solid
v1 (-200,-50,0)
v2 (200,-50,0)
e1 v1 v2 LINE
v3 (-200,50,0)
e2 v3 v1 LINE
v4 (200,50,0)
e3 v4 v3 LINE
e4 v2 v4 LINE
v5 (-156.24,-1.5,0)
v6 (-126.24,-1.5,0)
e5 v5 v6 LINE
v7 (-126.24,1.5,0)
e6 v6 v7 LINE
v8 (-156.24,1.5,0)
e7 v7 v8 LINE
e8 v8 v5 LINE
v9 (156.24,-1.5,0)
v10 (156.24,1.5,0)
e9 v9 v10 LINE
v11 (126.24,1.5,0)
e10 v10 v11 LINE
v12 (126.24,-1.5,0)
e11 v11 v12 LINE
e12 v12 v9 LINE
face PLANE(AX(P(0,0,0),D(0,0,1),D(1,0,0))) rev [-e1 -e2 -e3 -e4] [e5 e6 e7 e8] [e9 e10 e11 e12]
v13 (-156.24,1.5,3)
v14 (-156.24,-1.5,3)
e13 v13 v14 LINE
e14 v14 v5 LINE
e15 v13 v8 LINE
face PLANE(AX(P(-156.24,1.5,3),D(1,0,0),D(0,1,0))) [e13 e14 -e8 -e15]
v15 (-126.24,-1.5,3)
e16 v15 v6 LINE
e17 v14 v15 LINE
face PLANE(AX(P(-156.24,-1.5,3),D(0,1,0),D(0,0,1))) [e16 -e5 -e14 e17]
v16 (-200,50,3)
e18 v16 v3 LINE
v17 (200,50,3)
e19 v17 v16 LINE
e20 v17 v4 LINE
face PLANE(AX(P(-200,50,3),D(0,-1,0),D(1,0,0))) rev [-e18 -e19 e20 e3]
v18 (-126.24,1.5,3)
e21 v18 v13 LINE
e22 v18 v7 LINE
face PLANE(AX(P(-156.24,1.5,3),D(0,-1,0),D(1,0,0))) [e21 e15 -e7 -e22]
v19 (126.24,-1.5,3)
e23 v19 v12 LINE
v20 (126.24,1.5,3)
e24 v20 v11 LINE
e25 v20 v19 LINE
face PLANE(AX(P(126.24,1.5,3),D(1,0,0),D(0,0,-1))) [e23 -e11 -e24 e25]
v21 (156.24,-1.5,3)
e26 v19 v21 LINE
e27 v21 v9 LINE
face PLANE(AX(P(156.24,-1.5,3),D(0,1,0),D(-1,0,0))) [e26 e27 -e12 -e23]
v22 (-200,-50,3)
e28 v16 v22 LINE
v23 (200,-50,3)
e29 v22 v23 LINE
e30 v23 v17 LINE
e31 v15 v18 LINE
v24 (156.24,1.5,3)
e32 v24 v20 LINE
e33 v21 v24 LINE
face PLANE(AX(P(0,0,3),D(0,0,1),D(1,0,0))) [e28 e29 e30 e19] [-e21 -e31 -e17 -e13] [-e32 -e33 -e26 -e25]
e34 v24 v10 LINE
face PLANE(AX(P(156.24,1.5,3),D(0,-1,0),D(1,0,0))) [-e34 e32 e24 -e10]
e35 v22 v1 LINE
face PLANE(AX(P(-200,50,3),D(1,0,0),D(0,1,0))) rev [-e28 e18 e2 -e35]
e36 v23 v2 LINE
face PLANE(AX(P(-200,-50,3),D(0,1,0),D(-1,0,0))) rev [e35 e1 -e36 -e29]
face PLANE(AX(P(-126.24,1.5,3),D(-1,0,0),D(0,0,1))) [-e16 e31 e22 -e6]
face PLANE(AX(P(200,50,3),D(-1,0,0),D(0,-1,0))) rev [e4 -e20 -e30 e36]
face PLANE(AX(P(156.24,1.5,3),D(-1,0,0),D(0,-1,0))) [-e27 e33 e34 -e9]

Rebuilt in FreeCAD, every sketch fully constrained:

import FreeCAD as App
import Part
import Sketcher

V = App.Vector
Q = App.Units.Quantity

doc = App.newDocument("Part")
body = doc.addObject("PartDesign::Body", "Body")

sketch1 = body.newObject("Sketcher::SketchObject", "Sketch")
sketch1.AttachmentSupport = (doc.getObject("XY_Plane"), [""])
sketch1.MapMode = "FlatFace"
sketch1.addGeometry([
    Part.LineSegment(V(-200, 50, 0), V(-200, -50, 0)),
    Part.LineSegment(V(-200, -50, 0), V(200, -50, 0)),
    Part.LineSegment(V(200, -50, 0), V(200, 50, 0)),
    Part.LineSegment(V(200, 50, 0), V(-200, 50, 0)),
    Part.LineSegment(V(-126.2, -1.5, 0), V(-156.2, -1.5, 0)),
    Part.LineSegment(V(-156.2, -1.5, 0), V(-156.2, 1.5, 0)),
    Part.LineSegment(V(-156.2, 1.5, 0), V(-126.2, 1.5, 0)),
    Part.LineSegment(V(-126.2, 1.5, 0), V(-126.2, -1.5, 0)),
    Part.LineSegment(V(156.2, -1.5, 0), V(126.2, -1.5, 0)),
    Part.LineSegment(V(126.2, -1.5, 0), V(126.2, 1.5, 0)),
    Part.LineSegment(V(126.2, 1.5, 0), V(156.2, 1.5, 0)),
    Part.LineSegment(V(156.2, 1.5, 0), V(156.2, -1.5, 0)),
], False)
sketch1.addConstraint([
    Sketcher.Constraint("Coincident", 0, 2, 1, 1),
    Sketcher.Constraint("Coincident", 1, 2, 2, 1),
    Sketcher.Constraint("Coincident", 2, 2, 3, 1),
    Sketcher.Constraint("Coincident", 3, 2, 0, 1),
    Sketcher.Constraint("Coincident", 4, 2, 5, 1),
    Sketcher.Constraint("Coincident", 5, 2, 6, 1),
    Sketcher.Constraint("Coincident", 6, 2, 7, 1),
    Sketcher.Constraint("Coincident", 7, 2, 4, 1),
    Sketcher.Constraint("Coincident", 8, 2, 9, 1),
    Sketcher.Constraint("Coincident", 9, 2, 10, 1),
    Sketcher.Constraint("Coincident", 10, 2, 11, 1),
    Sketcher.Constraint("Coincident", 11, 2, 8, 1),
    Sketcher.Constraint("Vertical", 0),
    Sketcher.Constraint("Horizontal", 1),
    Sketcher.Constraint("Vertical", 2),
    Sketcher.Constraint("Horizontal", 3),
    Sketcher.Constraint("Horizontal", 4),
    Sketcher.Constraint("Vertical", 5),
    Sketcher.Constraint("Horizontal", 6),
    Sketcher.Constraint("Vertical", 7),
    Sketcher.Constraint("Horizontal", 8),
    Sketcher.Constraint("Vertical", 9),
    Sketcher.Constraint("Horizontal", 10),
    Sketcher.Constraint("Vertical", 11),
    Sketcher.Constraint("Symmetric", 0, 2, 2, 2, -1, 1),
    Sketcher.Constraint("Symmetric", 6, 2, 8, 2, -1, 1),
    Sketcher.Constraint("Symmetric", 4, 2, 10, 2, -1, 1),
    Sketcher.Constraint("Horizontal", 7, 2, 8, 2),
    Sketcher.Constraint("DistanceX", 1, 1, 1, 2, Q("400 mm")),
    Sketcher.Constraint("DistanceX", 4, 2, 4, 1, Q("30 mm")),
    Sketcher.Constraint("DistanceY", 0, 2, 0, 1, Q("100 mm")),
    Sketcher.Constraint("DistanceY", 5, 1, 5, 2, Q("3 mm")),
    Sketcher.Constraint("DistanceX", 4, 2, -1, 1, Q("156.24 mm")),
])
pad1 = body.newObject("PartDesign::Pad", "Pad")
pad1.Profile = sketch1
pad1.Length = 3

doc.recompute()
